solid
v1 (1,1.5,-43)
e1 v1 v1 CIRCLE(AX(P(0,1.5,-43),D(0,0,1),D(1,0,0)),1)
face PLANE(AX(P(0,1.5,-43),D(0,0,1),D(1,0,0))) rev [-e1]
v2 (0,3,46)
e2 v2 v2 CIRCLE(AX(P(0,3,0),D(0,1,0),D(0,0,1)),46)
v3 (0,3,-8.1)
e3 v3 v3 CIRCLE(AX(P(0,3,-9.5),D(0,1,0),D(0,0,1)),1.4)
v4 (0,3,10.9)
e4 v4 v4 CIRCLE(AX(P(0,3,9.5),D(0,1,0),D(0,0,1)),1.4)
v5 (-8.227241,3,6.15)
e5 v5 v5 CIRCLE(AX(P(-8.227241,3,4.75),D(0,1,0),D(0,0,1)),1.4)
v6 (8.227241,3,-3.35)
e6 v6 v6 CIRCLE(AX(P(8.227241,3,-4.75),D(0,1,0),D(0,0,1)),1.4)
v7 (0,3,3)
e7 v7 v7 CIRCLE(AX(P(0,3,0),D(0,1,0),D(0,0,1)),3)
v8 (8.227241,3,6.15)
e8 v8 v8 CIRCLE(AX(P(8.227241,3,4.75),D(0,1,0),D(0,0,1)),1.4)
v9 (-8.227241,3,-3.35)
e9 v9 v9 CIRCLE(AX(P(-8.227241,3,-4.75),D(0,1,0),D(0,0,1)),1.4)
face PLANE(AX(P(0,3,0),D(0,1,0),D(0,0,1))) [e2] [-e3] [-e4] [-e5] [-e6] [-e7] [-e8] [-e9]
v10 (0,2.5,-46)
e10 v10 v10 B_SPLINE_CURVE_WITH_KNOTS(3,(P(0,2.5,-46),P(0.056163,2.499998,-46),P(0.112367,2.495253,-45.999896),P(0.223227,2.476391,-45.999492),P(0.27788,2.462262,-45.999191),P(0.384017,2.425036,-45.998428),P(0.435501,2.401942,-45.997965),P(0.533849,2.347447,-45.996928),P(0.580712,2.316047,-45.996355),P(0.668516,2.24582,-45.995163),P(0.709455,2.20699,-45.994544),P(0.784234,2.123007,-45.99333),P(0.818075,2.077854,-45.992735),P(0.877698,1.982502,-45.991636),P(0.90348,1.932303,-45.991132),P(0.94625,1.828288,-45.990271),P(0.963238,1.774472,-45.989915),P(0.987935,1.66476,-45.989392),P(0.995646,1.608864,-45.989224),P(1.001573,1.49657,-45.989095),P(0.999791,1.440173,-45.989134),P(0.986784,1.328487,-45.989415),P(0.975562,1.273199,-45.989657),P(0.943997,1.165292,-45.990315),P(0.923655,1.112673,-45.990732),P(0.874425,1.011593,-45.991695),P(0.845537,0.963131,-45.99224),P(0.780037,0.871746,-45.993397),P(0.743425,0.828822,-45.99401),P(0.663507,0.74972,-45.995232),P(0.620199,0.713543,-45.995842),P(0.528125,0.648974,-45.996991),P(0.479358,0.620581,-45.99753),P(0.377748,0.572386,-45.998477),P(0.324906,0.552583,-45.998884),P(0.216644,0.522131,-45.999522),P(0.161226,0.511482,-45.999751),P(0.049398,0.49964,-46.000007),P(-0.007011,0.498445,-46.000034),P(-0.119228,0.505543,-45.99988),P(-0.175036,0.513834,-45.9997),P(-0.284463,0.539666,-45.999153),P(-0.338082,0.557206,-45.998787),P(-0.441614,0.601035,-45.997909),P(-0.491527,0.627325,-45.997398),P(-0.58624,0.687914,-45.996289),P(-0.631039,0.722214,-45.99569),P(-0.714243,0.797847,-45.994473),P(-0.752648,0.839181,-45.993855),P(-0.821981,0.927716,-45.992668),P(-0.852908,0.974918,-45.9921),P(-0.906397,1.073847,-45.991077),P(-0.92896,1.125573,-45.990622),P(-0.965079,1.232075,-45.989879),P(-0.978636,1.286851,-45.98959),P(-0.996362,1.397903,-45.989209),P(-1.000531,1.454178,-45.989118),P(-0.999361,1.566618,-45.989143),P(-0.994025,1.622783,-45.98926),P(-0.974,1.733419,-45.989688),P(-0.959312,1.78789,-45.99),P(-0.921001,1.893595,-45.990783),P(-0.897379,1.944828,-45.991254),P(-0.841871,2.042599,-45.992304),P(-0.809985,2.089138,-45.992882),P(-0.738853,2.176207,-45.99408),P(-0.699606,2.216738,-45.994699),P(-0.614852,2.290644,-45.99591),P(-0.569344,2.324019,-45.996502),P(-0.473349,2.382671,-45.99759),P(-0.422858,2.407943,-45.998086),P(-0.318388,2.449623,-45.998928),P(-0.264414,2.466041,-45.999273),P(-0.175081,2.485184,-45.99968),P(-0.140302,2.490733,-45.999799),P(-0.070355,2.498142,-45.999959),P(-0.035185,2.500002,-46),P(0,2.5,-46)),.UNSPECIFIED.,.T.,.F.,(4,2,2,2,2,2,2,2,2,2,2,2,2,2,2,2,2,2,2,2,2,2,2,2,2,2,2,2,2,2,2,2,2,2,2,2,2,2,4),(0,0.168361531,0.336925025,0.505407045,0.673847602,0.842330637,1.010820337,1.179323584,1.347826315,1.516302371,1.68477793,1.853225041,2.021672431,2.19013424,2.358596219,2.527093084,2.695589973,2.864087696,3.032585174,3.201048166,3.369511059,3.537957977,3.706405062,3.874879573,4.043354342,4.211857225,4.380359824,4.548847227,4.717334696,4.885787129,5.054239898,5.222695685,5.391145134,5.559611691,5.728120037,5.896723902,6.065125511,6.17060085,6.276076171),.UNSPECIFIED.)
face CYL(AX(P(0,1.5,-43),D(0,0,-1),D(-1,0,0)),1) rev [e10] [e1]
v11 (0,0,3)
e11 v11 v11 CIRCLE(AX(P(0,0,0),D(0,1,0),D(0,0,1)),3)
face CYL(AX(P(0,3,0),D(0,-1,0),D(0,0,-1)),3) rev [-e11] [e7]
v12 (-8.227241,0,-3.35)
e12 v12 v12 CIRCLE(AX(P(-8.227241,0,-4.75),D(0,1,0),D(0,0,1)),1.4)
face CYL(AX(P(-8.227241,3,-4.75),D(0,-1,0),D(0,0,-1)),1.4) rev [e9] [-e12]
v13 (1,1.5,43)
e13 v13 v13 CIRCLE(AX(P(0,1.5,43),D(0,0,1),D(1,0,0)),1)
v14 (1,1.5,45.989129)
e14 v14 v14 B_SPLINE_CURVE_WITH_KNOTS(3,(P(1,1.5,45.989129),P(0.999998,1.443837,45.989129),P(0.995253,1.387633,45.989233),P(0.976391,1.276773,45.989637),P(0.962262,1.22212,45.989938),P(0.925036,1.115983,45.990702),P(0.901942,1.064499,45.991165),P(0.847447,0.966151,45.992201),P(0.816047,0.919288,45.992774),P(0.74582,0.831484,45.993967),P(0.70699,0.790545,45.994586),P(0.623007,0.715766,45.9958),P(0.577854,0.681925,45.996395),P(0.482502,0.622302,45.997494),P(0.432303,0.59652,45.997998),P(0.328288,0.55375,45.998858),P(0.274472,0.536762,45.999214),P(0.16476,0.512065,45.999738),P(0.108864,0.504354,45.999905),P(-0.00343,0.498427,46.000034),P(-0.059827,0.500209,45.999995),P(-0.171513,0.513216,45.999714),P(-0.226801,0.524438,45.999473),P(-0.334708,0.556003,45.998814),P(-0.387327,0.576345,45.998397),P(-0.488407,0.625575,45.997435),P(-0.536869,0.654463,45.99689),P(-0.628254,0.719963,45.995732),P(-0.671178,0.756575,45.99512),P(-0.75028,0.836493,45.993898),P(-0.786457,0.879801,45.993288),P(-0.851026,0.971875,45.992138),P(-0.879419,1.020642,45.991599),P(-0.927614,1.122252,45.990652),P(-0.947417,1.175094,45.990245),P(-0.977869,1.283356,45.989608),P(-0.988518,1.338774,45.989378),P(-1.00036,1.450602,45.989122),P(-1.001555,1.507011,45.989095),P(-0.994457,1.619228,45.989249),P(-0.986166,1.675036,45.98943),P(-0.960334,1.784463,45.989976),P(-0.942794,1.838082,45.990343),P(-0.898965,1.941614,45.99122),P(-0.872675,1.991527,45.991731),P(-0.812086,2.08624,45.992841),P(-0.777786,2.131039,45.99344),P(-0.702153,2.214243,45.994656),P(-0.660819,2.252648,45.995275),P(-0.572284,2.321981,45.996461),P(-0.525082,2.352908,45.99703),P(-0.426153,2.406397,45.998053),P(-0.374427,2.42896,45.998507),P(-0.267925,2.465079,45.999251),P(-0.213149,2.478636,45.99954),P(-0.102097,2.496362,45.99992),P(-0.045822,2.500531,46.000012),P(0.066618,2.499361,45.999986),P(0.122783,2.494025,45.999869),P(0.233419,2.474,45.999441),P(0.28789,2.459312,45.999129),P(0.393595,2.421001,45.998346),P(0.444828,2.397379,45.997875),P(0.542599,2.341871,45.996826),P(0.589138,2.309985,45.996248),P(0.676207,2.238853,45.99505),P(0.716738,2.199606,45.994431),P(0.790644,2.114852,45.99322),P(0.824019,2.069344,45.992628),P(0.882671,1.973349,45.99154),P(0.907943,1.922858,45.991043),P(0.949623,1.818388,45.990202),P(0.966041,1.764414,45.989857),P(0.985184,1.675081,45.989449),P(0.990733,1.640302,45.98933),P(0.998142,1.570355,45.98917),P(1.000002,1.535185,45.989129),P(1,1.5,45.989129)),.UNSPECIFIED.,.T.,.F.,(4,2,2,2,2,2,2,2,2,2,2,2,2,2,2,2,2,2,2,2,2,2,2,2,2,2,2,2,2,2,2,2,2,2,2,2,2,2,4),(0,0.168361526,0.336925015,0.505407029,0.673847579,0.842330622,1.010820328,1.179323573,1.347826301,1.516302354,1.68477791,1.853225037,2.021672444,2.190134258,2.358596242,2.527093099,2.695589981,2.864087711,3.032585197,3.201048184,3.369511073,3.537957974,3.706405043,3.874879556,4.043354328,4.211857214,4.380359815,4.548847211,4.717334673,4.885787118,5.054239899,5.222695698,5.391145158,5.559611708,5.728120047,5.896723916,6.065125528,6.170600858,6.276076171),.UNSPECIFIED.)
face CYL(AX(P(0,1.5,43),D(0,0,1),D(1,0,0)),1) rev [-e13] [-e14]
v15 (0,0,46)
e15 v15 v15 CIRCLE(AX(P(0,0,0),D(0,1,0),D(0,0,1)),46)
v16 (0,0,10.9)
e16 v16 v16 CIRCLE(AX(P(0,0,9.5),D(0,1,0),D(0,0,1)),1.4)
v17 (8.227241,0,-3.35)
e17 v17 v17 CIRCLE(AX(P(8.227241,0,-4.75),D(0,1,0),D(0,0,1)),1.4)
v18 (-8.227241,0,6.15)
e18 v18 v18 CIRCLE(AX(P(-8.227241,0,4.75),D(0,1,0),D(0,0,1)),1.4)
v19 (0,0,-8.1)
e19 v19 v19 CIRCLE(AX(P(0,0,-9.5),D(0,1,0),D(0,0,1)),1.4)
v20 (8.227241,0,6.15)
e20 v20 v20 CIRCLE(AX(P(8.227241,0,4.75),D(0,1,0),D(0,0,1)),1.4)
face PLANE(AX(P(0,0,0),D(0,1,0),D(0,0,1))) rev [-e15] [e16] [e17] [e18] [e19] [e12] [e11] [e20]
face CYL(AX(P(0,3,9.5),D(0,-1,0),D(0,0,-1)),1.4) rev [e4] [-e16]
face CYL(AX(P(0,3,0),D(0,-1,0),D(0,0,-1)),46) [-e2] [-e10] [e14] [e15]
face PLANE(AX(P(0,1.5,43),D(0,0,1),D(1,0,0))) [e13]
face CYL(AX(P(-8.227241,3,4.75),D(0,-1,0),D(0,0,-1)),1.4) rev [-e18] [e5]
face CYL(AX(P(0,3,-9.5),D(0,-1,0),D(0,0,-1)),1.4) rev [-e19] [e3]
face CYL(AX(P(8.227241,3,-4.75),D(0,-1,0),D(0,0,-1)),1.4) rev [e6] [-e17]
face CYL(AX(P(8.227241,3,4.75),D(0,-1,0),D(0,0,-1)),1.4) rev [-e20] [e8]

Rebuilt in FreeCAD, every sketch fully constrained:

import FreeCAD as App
import Part
import Sketcher
from FreeCAD import Vector

doc = App.newDocument("Part")
body = doc.addObject("PartDesign::Body", "Body")

# Sketch on XZ plane
sketch1 = doc.addObject("Sketcher::SketchObject", "Sketch")
body.addObject(sketch1)
sketch1.AttachmentSupport = (doc.XZ_Plane, [""])
sketch1.MapMode = "FlatFace"
sketch1.addGeometry(Part.Circle(Vector(0, 0, 0), Vector(0, 0, 1), 46), False)
sketch1.addGeometry(Part.Circle(Vector(-8.227241, 4.75, 0), Vector(0, 0, 1), 1.4), False)
sketch1.addGeometry(Part.Circle(Vector(0, 9.5, 0), Vector(0, 0, 1), 1.4), False)
sketch1.addGeometry(Part.Circle(Vector(0, 0, 0), Vector(0, 0, 1), 3), False)
sketch1.addGeometry(Part.Circle(Vector(8.227241, 4.75, 0), Vector(0, 0, 1), 1.4), False)
sketch1.addGeometry(Part.Circle(Vector(-8.227241, -4.75, 0), Vector(0, 0, 1), 1.4), False)
sketch1.addGeometry(Part.Circle(Vector(8.227241, -4.75, 0), Vector(0, 0, 1), 1.4), False)
sketch1.addGeometry(Part.Circle(Vector(0, -9.5, 0), Vector(0, 0, 1), 1.4), False)
sketch1.addConstraint(Sketcher.Constraint("Coincident", 0, 3, -1, 1))
sketch1.addConstraint(Sketcher.Constraint("Coincident", 3, 3, -1, 1))
sketch1.addConstraint(Sketcher.Constraint("Equal", 1, 2))
sketch1.addConstraint(Sketcher.Constraint("Equal", 2, 4))
sketch1.addConstraint(Sketcher.Constraint("Equal", 4, 5))
sketch1.addConstraint(Sketcher.Constraint("Equal", 5, 6))
sketch1.addConstraint(Sketcher.Constraint("Equal", 6, 7))
sketch1.addConstraint(Sketcher.Constraint("Symmetric", 4, 3, 5, 3, -1, 1))
sketch1.addConstraint(Sketcher.Constraint("Symmetric", 1, 3, 6, 3, -1, 1))
sketch1.addConstraint(Sketcher.Constraint("Symmetric", 2, 3, 7, 3, -1, 1))
sketch1.addConstraint(Sketcher.Constraint("Symmetric", 1, 3, 4, 3, -2))
sketch1.addConstraint(Sketcher.Constraint("PointOnObject", 2, 3, -2))
sketch1.addConstraint(Sketcher.Constraint("Diameter", 0, 92.0))
sketch1.addConstraint(Sketcher.Constraint("Diameter", 3, 6.0))
sketch1.addConstraint(Sketcher.Constraint("Diameter", 1, 2.8))
sketch1.addConstraint(Sketcher.Constraint("DistanceY", -1, 1, 2, 3, 9.5))
sketch1.addConstraint(Sketcher.Constraint("DistanceY", 5, 3, 1, 3, 9.5))
sketch1.addConstraint(Sketcher.Constraint("DistanceX", 1, 3, -1, 1, 8.227241))
pad1 = doc.addObject("PartDesign::Pad", "Pad")
body.addObject(pad1)
pad1.Profile = sketch1
pad1.Length = 3
pad1.Reversed = True

# Sketch on XY plane
sketch2 = doc.addObject("Sketcher::SketchObject", "Sketch001")
body.addObject(sketch2)
sketch2.AttachmentSupport = (doc.XY_Plane, [""])
sketch2.MapMode = "FlatFace"
sketch2.AttachmentOffset = App.Placement(Vector(0, 0, 46), App.Rotation())
sketch2.addGeometry(Part.Circle(Vector(0, 1.5, 0), Vector(0, 0, 1), 1), False)
sketch2.addConstraint(Sketcher.Constraint("PointOnObject", 0, 3, -2))
sketch2.addConstraint(Sketcher.Constraint("Diameter", 0, 2.0))
sketch2.addConstraint(Sketcher.Constraint("DistanceY", -1, 1, 0, 3, 1.5))
pocket1 = doc.addObject("PartDesign::Pocket", "Pocket")
body.addObject(pocket1)
pocket1.Profile = sketch2
pocket1.Length = 3

# Sketch on XY plane
sketch3 = doc.addObject("Sketcher::SketchObject", "Sketch002")
body.addObject(sketch3)
sketch3.AttachmentSupport = (doc.XY_Plane, [""])
sketch3.MapMode = "FlatFace"
sketch3.AttachmentOffset = App.Placement(Vector(0, 0, -46), App.Rotation())
sketch3.addGeometry(Part.Circle(Vector(0, 1.5, 0), Vector(0, 0, 1), 1), False)
sketch3.addConstraint(Sketcher.Constraint("PointOnObject", 0, 3, -2))
sketch3.addConstraint(Sketcher.Constraint("Diameter", 0, 2.0))
sketch3.addConstraint(Sketcher.Constraint("DistanceY", -1, 1, 0, 3, 1.5))
pocket2 = doc.addObject("PartDesign::Pocket", "Pocket001")
body.addObject(pocket2)
pocket2.Profile = sketch3
pocket2.Length = 3
pocket2.Reversed = True

doc.recompute()
